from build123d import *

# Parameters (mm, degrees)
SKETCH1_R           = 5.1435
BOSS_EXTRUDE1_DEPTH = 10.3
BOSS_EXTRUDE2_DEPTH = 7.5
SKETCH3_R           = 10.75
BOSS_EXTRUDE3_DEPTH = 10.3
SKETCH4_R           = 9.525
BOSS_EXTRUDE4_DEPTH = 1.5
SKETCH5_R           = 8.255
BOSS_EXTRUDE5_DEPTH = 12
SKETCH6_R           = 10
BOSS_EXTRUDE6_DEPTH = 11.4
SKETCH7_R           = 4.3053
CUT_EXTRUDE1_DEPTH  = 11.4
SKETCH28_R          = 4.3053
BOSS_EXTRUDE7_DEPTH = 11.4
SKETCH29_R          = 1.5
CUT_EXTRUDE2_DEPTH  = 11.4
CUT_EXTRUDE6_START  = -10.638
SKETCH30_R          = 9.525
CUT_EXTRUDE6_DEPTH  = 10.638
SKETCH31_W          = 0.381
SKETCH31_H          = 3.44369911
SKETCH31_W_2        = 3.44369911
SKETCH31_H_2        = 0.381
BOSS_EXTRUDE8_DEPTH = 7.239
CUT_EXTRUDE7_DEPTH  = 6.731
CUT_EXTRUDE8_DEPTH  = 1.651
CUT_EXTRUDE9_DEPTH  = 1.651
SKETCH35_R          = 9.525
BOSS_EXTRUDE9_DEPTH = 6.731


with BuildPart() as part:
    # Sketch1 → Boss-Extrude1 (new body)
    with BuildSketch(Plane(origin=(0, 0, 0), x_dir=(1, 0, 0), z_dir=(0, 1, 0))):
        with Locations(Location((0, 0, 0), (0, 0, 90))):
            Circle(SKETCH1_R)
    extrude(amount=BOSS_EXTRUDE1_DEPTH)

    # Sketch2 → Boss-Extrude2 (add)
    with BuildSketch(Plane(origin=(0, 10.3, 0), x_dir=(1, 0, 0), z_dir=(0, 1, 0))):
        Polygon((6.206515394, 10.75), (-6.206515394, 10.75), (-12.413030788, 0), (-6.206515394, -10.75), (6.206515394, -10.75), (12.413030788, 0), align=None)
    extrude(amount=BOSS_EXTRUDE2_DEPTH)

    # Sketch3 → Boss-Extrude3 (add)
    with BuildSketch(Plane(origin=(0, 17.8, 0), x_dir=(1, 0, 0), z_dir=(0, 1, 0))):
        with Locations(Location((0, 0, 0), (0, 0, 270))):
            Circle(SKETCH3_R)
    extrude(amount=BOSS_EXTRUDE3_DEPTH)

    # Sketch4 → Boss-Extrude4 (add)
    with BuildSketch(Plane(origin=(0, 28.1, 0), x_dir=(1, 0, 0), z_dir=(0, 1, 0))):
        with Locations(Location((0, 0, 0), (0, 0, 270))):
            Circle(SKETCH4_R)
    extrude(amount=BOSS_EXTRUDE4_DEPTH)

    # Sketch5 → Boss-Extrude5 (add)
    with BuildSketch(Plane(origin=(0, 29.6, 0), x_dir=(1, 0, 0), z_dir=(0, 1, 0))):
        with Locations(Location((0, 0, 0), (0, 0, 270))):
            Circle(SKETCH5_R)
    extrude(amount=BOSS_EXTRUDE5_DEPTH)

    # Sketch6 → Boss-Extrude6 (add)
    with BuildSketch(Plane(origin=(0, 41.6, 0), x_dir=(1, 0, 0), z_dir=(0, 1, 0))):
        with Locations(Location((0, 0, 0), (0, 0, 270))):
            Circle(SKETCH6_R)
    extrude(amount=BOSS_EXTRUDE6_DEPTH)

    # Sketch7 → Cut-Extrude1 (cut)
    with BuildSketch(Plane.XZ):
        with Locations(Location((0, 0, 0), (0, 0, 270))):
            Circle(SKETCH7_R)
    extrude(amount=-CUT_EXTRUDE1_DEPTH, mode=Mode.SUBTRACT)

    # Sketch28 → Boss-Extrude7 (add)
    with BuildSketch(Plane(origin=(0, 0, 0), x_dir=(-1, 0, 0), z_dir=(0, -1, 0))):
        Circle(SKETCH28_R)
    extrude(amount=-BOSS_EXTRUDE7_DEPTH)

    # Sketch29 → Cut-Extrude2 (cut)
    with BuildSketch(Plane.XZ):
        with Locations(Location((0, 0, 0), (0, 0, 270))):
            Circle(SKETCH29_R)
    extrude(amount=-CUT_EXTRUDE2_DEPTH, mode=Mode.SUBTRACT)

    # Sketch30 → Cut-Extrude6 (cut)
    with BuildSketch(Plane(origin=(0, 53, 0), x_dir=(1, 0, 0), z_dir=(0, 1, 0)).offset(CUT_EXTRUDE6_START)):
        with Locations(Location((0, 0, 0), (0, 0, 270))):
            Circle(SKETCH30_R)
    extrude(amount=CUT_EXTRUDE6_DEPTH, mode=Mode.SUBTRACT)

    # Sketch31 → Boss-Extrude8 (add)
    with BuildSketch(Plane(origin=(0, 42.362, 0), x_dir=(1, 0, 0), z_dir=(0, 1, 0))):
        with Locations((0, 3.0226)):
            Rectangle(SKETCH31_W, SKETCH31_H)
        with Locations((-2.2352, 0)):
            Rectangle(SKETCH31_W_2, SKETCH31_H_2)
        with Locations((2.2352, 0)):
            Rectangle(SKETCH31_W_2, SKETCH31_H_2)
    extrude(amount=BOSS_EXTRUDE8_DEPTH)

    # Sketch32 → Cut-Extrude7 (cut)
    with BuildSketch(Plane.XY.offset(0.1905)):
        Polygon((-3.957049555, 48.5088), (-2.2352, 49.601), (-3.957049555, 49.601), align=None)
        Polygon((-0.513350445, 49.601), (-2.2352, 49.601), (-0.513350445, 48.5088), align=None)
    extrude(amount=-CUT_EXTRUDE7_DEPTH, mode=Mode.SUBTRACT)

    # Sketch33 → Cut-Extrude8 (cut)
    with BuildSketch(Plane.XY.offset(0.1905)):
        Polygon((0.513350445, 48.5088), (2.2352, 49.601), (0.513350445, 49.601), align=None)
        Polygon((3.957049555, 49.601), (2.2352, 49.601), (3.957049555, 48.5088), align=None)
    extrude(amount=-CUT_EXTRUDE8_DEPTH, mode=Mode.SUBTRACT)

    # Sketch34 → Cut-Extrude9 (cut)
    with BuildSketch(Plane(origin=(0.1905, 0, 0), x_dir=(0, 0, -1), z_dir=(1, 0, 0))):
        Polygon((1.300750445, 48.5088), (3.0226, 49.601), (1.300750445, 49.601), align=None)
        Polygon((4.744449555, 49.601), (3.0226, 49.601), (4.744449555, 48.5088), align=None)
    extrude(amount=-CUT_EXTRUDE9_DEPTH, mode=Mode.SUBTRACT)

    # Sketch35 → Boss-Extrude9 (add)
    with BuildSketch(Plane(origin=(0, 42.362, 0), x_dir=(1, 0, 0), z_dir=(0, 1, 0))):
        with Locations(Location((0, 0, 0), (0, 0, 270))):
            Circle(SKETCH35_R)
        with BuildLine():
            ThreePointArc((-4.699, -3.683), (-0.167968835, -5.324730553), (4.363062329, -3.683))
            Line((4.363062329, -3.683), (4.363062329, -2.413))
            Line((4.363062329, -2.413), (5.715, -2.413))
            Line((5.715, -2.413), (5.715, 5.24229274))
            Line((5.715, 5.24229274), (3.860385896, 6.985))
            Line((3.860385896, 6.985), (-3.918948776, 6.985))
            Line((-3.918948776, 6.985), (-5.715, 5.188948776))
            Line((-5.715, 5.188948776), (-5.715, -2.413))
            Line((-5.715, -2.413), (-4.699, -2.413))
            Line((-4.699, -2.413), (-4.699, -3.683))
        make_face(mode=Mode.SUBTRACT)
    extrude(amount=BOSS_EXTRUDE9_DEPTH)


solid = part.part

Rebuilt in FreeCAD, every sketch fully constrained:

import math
import FreeCAD as App
import Part
import Sketcher
from FreeCAD import Vector
Q = App.Units.Quantity


def add_polygon(sketch, points):
    """Adds a closed chain of lines whose ends are joined by coincident constraints."""
    first, n = sketch.GeometryCount, len(points)
    for a, b in zip(points, points[1:] + points[:1]):
        sketch.addGeometry(Part.LineSegment(App.Vector(*a, 0), App.Vector(*b, 0)), False)
    for i in range(n):
        sketch.addConstraint(Sketcher.Constraint("Coincident", first + i, 2, first + (i + 1) % n, 1))

doc = App.newDocument("Part")
params = doc.addObject("Spreadsheet::Sheet", "Params")
for row, (alias, value) in enumerate([
    ("sketch1_diameter", "0.405 in"),
    ("pad1_length", "10.3 mm"),
    ("pad2_length", "7.5 mm"),
    ("pad3_length", "10.3 mm"),
    ("sketch4_diameter", "0.75 in"),
    ("pad4_length", "1.5 mm"),
    ("sketch5_diameter", "0.65 in"),
    ("pad5_length", "12 mm"),
    ("pad6_length", "11.4 mm"),
    ("sketch7_diameter", "0.339 in"),
    ("pocket1_length", "11.4 mm"),
    ("sketch8_diameter", "0.339 in"),
    ("pad7_length", "11.4 mm"),
    ("pocket2_length", "11.4 mm"),
    ("sketch10_diameter", "0.75 in"),
    ("pocket3_length", "10.638 mm"),
    ("sketch11_width", "0.015 in"),
    ("pad8_length", "0.285 in"),
    ("sketch12_height", "0.043 in"),
    ("pocket4_length", "0.265 in"),
    ("sketch13_height", "0.043 in"),
    ("pocket5_length", "0.065 in"),
    ("sketch14_width", "0.043 in"),
    ("pocket6_length", "0.065 in"),
    ("sketch15_diameter", "0.75 in"),
    ("sketch15_length", "0.1 in"),
    ("sketch15_width", "0.04 in"),
    ("sketch15_height", "0.05 in"),
    ("pad9_length", "0.265 in"),
], start=1):
    params.set(f"A{row}", alias)
    params.set(f"B{row}", "=" + value)
    params.setAlias(f"B{row}", alias)

body = doc.addObject("PartDesign::Body", "Body")

sketch1 = doc.addObject("Sketcher::SketchObject", "Sketch")
body.addObject(sketch1)
sketch1.AttachmentSupport = (doc.XZ_Plane, [""])
sketch1.MapMode = "FlatFace"
sketch1.addGeometry(Part.Circle(Vector(0, 0, 0), Vector(0, 0, 1), 5.1435), False)
sketch1.addConstraint([
    Sketcher.Constraint("Coincident", 0, 3, -1, 1),
    Sketcher.Constraint("Diameter", 0, Q("0.405 in")),
])
sketch1.setExpression("Constraints[1]", "Params.sketch1_diameter")
pad1 = doc.addObject("PartDesign::Pad", "Pad")
body.addObject(pad1)
pad1.Profile = sketch1
pad1.setExpression("Length", "Params.pad1_length")
pad1.Reversed = True

sketch2 = doc.addObject("Sketcher::SketchObject", "Sketch001")
body.addObject(sketch2)
sketch2.AttachmentSupport = (doc.XZ_Plane, [""])
sketch2.MapMode = "FlatFace"
sketch2.AttachmentOffset = App.Placement(Vector(0, 0, -10.3), App.Rotation())
add_polygon(sketch2, [(6.206515, -10.75), (-6.206515, -10.75), (-12.413031, 0), (-6.206515, 10.75), (6.206515, 10.75), (12.413031, 0)])
sketch2.addConstraint([
    Sketcher.Constraint("Horizontal", 0),
    Sketcher.Constraint("Horizontal", 3),
    Sketcher.Constraint("Symmetric", 0, 2, 3, 2, -1, 1),
    Sketcher.Constraint("Symmetric", 1, 2, 4, 2, -1, 1),
    Sketcher.Constraint("PointOnObject", 1, 2, -1),
    Sketcher.Constraint("Parallel", 2, 5),
    Sketcher.Constraint("Vertical", 0, 2, 2, 2),
    Sketcher.Constraint("Angle", 1, Q("120 deg")),
    Sketcher.Constraint("DistanceX", 0, 2, 0, 1, Q("12.413031 mm")),
    Sketcher.Constraint("DistanceY", 0, 2, -1, 1, Q("10.75 mm")),
])
pad2 = doc.addObject("PartDesign::Pad", "Pad001")
body.addObject(pad2)
pad2.Profile = sketch2
pad2.setExpression("Length", "Params.pad2_length")
pad2.Reversed = True

sketch3 = doc.addObject("Sketcher::SketchObject", "Sketch002")
body.addObject(sketch3)
sketch3.AttachmentSupport = (doc.XZ_Plane, [""])
sketch3.MapMode = "FlatFace"
sketch3.AttachmentOffset = App.Placement(Vector(0, 0, -17.8), App.Rotation())
sketch3.addGeometry(Part.Circle(Vector(0, 0, 0), Vector(0, 0, 1), 10.75), False)
sketch3.addConstraint([
    Sketcher.Constraint("Coincident", 0, 3, -1, 1),
    Sketcher.Constraint("Diameter", 0, Q("21.5 mm")),
])
pad3 = doc.addObject("PartDesign::Pad", "Pad002")
body.addObject(pad3)
pad3.Profile = sketch3
pad3.setExpression("Length", "Params.pad3_length")
pad3.Reversed = True

sketch4 = doc.addObject("Sketcher::SketchObject", "Sketch003")
body.addObject(sketch4)
sketch4.AttachmentSupport = (doc.XZ_Plane, [""])
sketch4.MapMode = "FlatFace"
sketch4.AttachmentOffset = App.Placement(Vector(0, 0, -28.1), App.Rotation())
sketch4.addGeometry(Part.Circle(Vector(0, 0, 0), Vector(0, 0, 1), 9.525), False)
sketch4.addConstraint([
    Sketcher.Constraint("Coincident", 0, 3, -1, 1),
    Sketcher.Constraint("Diameter", 0, Q("0.75 in")),
])
sketch4.setExpression("Constraints[1]", "Params.sketch4_diameter")
pad4 = doc.addObject("PartDesign::Pad", "Pad003")
body.addObject(pad4)
pad4.Profile = sketch4
pad4.setExpression("Length", "Params.pad4_length")
pad4.Reversed = True

sketch5 = doc.addObject("Sketcher::SketchObject", "Sketch004")
body.addObject(sketch5)
sketch5.AttachmentSupport = (doc.XZ_Plane, [""])
sketch5.MapMode = "FlatFace"
sketch5.AttachmentOffset = App.Placement(Vector(0, 0, -29.6), App.Rotation())
sketch5.addGeometry(Part.Circle(Vector(0, 0, 0), Vector(0, 0, 1), 8.255), False)
sketch5.addConstraint([
    Sketcher.Constraint("Coincident", 0, 3, -1, 1),
    Sketcher.Constraint("Diameter", 0, Q("0.65 in")),
])
sketch5.setExpression("Constraints[1]", "Params.sketch5_diameter")
pad5 = doc.addObject("PartDesign::Pad", "Pad004")
body.addObject(pad5)
pad5.Profile = sketch5
pad5.setExpression("Length", "Params.pad5_length")
pad5.Reversed = True

sketch6 = doc.addObject("Sketcher::SketchObject", "Sketch005")
body.addObject(sketch6)
sketch6.AttachmentSupport = (doc.XZ_Plane, [""])
sketch6.MapMode = "FlatFace"
sketch6.AttachmentOffset = App.Placement(Vector(0, 0, -41.6), App.Rotation())
sketch6.addGeometry(Part.Circle(Vector(0, 0, 0), Vector(0, 0, 1), 10), False)
sketch6.addConstraint([
    Sketcher.Constraint("Coincident", 0, 3, -1, 1),
    Sketcher.Constraint("Diameter", 0, Q("20 mm")),
])
pad6 = doc.addObject("PartDesign::Pad", "Pad005")
body.addObject(pad6)
pad6.Profile = sketch6
pad6.setExpression("Length", "Params.pad6_length")
pad6.Reversed = True

sketch7 = doc.addObject("Sketcher::SketchObject", "Sketch006")
body.addObject(sketch7)
sketch7.AttachmentSupport = (doc.XZ_Plane, [""])
sketch7.MapMode = "FlatFace"
sketch7.addGeometry(Part.Circle(Vector(0, 0, 0), Vector(0, 0, 1), 4.3053), False)
sketch7.addConstraint([
    Sketcher.Constraint("Coincident", 0, 3, -1, 1),
    Sketcher.Constraint("Diameter", 0, Q("0.339 in")),
])
sketch7.setExpression("Constraints[1]", "Params.sketch7_diameter")
pocket1 = doc.addObject("PartDesign::Pocket", "Pocket")
body.addObject(pocket1)
pocket1.Profile = sketch7
pocket1.setExpression("Length", "Params.pocket1_length")

sketch8 = doc.addObject("Sketcher::SketchObject", "Sketch007")
body.addObject(sketch8)
sketch8.AttachmentSupport = (doc.XZ_Plane, [""])
sketch8.MapMode = "FlatFace"
sketch8.addGeometry(Part.Circle(Vector(0, 0, 0), Vector(0, 0, 1), 4.3053), False)
sketch8.addConstraint([
    Sketcher.Constraint("Coincident", 0, 3, -1, 1),
    Sketcher.Constraint("Diameter", 0, Q("0.339 in")),
])
sketch8.setExpression("Constraints[1]", "Params.sketch8_diameter")
pad7 = doc.addObject("PartDesign::Pad", "Pad006")
body.addObject(pad7)
pad7.Profile = sketch8
pad7.setExpression("Length", "Params.pad7_length")
pad7.Reversed = True

sketch9 = doc.addObject("Sketcher::SketchObject", "Sketch008")
body.addObject(sketch9)
sketch9.AttachmentSupport = (doc.XZ_Plane, [""])
sketch9.MapMode = "FlatFace"
sketch9.addGeometry(Part.Circle(Vector(0, 0, 0), Vector(0, 0, 1), 1.5), False)
sketch9.addConstraint([
    Sketcher.Constraint("Coincident", 0, 3, -1, 1),
    Sketcher.Constraint("Diameter", 0, Q("3 mm")),
])
pocket2 = doc.addObject("PartDesign::Pocket", "Pocket001")
body.addObject(pocket2)
pocket2.Profile = sketch9
pocket2.setExpression("Length", "Params.pocket2_length")

sketch10 = doc.addObject("Sketcher::SketchObject", "Sketch009")
body.addObject(sketch10)
sketch10.AttachmentSupport = (doc.XZ_Plane, [""])
sketch10.MapMode = "FlatFace"
sketch10.AttachmentOffset = App.Placement(Vector(0, 0, -42.362), App.Rotation())
sketch10.addGeometry(Part.Circle(Vector(0, 0, 0), Vector(0, 0, 1), 9.525), False)
sketch10.addConstraint([
    Sketcher.Constraint("Coincident", 0, 3, -1, 1),
    Sketcher.Constraint("Diameter", 0, Q("0.75 in")),
])
sketch10.setExpression("Constraints[1]", "Params.sketch10_diameter")
pocket3 = doc.addObject("PartDesign::Pocket", "Pocket002")
body.addObject(pocket3)
pocket3.Profile = sketch10
pocket3.setExpression("Length", "Params.pocket3_length")

sketch11 = doc.addObject("Sketcher::SketchObject", "Sketch010")
body.addObject(sketch11)
sketch11.AttachmentSupport = (doc.XZ_Plane, [""])
sketch11.MapMode = "FlatFace"
sketch11.AttachmentOffset = App.Placement(Vector(0, 0, -42.362), App.Rotation())
add_polygon(sketch11, [(-0.1905, -4.74445), (-0.1905, -1.30075), (0.1905, -1.30075), (0.1905, -4.74445)])
add_polygon(sketch11, [(-3.95705, -0.1905), (-3.95705, 0.1905), (-0.51335, 0.1905), (-0.51335, -0.1905)])
add_polygon(sketch11, [(0.51335, -0.1905), (0.51335, 0.1905), (3.95705, 0.1905), (3.95705, -0.1905)])
sketch11.addConstraint([
    Sketcher.Constraint("Vertical", 0),
    Sketcher.Constraint("Horizontal", 1),
    Sketcher.Constraint("Vertical", 2),
    Sketcher.Constraint("Horizontal", 3),
    Sketcher.Constraint("Vertical", 4),
    Sketcher.Constraint("Horizontal", 5),
    Sketcher.Constraint("Vertical", 6),
    Sketcher.Constraint("Horizontal", 7),
    Sketcher.Constraint("Vertical", 8),
    Sketcher.Constraint("Horizontal", 9),
    Sketcher.Constraint("Vertical", 10),
    Sketcher.Constraint("Horizontal", 11),
    Sketcher.Constraint("Symmetric", 6, 2, 8, 2, -1, 1),
    Sketcher.Constraint("Symmetric", 4, 2, 10, 2, -1, 1),
    Sketcher.Constraint("Horizontal", 5, 2, 8, 2),
    Sketcher.Constraint("Equal", 11, 0),
    Sketcher.Constraint("Equal", 3, 4),
    Sketcher.Constraint("DistanceX", 1, 1, 1, 2, Q("0.015 in")),
    Sketcher.Constraint("DistanceX", 4, 2, 8, 2, Q("0.176 in")),
    Sketcher.Constraint("DistanceX", 5, 1, 5, 2, Q("3.443699 mm")),
    Sketcher.Constraint("DistanceX", 0, 2, -1, 1, Q("0.0075 in")),
    Sketcher.Constraint("DistanceY", 0, 2, -1, 1, Q("1.30075 mm")),
])
sketch11.setExpression("Constraints[29]", "Params.sketch11_width")
pad8 = doc.addObject("PartDesign::Pad", "Pad007")
body.addObject(pad8)
pad8.Profile = sketch11
pad8.setExpression("Length", "Params.pad8_length")
pad8.Reversed = True

sketch12 = doc.addObject("Sketcher::SketchObject", "Sketch011")
body.addObject(sketch12)
sketch12.AttachmentSupport = (doc.XY_Plane, [""])
sketch12.MapMode = "FlatFace"
sketch12.AttachmentOffset = App.Placement(Vector(0, 0, 0.0075 * 25.4), App.Rotation())
add_polygon(sketch12, [(-3.95705, 48.5088), (-2.2352, 49.601), (-3.95705, 49.601)])
add_polygon(sketch12, [(-0.51335, 49.601), (-2.2352, 49.601), (-0.51335, 48.5088)])
sketch12.addConstraint([
    Sketcher.Constraint("Horizontal", 1),
    Sketcher.Constraint("Vertical", 2),
    Sketcher.Constraint("Horizontal", 3),
    Sketcher.Constraint("Vertical", 5),
    Sketcher.Constraint("Coincident", 3, 2, 0, 2),
    Sketcher.Constraint("Horizontal", 2, 2, 4, 2),
    Sketcher.Constraint("Equal", 1, 3),
    Sketcher.Constraint("DistanceY", 2, 2, 2, 1, Q("0.043 in")),
    Sketcher.Constraint("DistanceX", 0, 2, -1, 1, Q("0.088 in")),
    Sketcher.Constraint("DistanceX", 1, 2, 1, 1, Q("1.72185 mm")),
    Sketcher.Constraint("DistanceY", -1, 1, 0, 2, Q("49.601 mm")),
])
sketch12.setExpression("Constraints[13]", "Params.sketch12_height")
pocket4 = doc.addObject("PartDesign::Pocket", "Pocket003")
body.addObject(pocket4)
pocket4.Profile = sketch12
pocket4.setExpression("Length", "Params.pocket4_length")

sketch13 = doc.addObject("Sketcher::SketchObject", "Sketch012")
body.addObject(sketch13)
sketch13.AttachmentSupport = (doc.XY_Plane, [""])
sketch13.MapMode = "FlatFace"
sketch13.AttachmentOffset = App.Placement(Vector(0, 0, 0.0075 * 25.4), App.Rotation())
add_polygon(sketch13, [(0.51335, 48.5088), (2.2352, 49.601), (0.51335, 49.601)])
add_polygon(sketch13, [(3.95705, 49.601), (2.2352, 49.601), (3.95705, 48.5088)])
sketch13.addConstraint([
    Sketcher.Constraint("Horizontal", 1),
    Sketcher.Constraint("Vertical", 2),
    Sketcher.Constraint("Horizontal", 3),
    Sketcher.Constraint("Vertical", 5),
    Sketcher.Constraint("Coincident", 3, 2, 0, 2),
    Sketcher.Constraint("Horizontal", 2, 2, 4, 2),
    Sketcher.Constraint("Equal", 1, 3),
    Sketcher.Constraint("DistanceY", 2, 2, 2, 1, Q("0.043 in")),
    Sketcher.Constraint("DistanceX", -1, 1, 0, 2, Q("0.088 in")),
    Sketcher.Constraint("DistanceX", 1, 2, 1, 1, Q("1.72185 mm")),
    Sketcher.Constraint("DistanceY", -1, 1, 0, 2, Q("49.601 mm")),
])
sketch13.setExpression("Constraints[13]", "Params.sketch13_height")
pocket5 = doc.addObject("PartDesign::Pocket", "Pocket004")
body.addObject(pocket5)
pocket5.Profile = sketch13
pocket5.setExpression("Length", "Params.pocket5_length")

sketch14 = doc.addObject("Sketcher::SketchObject", "Sketch013")
body.addObject(sketch14)
sketch14.AttachmentSupport = (doc.YZ_Plane, [""])
sketch14.MapMode = "FlatFace"
sketch14.AttachmentOffset = App.Placement(Vector(0, 0, 0.0075 * 25.4), App.Rotation())
add_polygon(sketch14, [(48.5088, -1.30075), (49.601, -3.0226), (49.601, -1.30075)])
add_polygon(sketch14, [(49.601, -4.74445), (49.601, -3.0226), (48.5088, -4.74445)])
sketch14.addConstraint([
    Sketcher.Constraint("Vertical", 1),
    Sketcher.Constraint("Horizontal", 2),
    Sketcher.Constraint("Vertical", 3),
    Sketcher.Constraint("Horizontal", 5),
    Sketcher.Constraint("Coincident", 3, 2, 0, 2),
    Sketcher.Constraint("Vertical", 2, 2, 4, 2),
    Sketcher.Constraint("Equal", 1, 3),
    Sketcher.Constraint("DistanceX", 2, 2, 2, 1, Q("0.043 in")),
    Sketcher.Constraint("DistanceY", 0, 2, -1, 1, Q("0.119 in")),
    Sketcher.Constraint("DistanceY", 1, 1, 1, 2, Q("1.72185 mm")),
    Sketcher.Constraint("DistanceX", -1, 1, 0, 2, Q("49.601 mm")),
])
sketch14.setExpression("Constraints[13]", "Params.sketch14_width")
pocket6 = doc.addObject("PartDesign::Pocket", "Pocket005")
body.addObject(pocket6)
pocket6.Profile = sketch14
pocket6.setExpression("Length", "Params.pocket6_length")

sketch15 = doc.addObject("Sketcher::SketchObject", "Sketch014")
body.addObject(sketch15)
sketch15.AttachmentSupport = (doc.XZ_Plane, [""])
sketch15.MapMode = "FlatFace"
sketch15.AttachmentOffset = App.Placement(Vector(0, 0, -42.362), App.Rotation())
sketch15.addGeometry([
    Part.Circle(Vector(0, 0, 0), Vector(0, 0, 1), 9.525),
    Part.ArcOfCircle(Part.Circle(Vector(-0.167969, -1.748757, 0), Vector(0, 0, 1), 7.073488), math.radians(50.166012), math.radians(129.833988)),
    Part.LineSegment(Vector(-4.699, 3.683, 0), Vector(-4.699, 2.413, 0)),
    Part.LineSegment(Vector(-4.699, 2.413, 0), Vector(-5.715, 2.413, 0)),
    Part.LineSegment(Vector(-5.715, 2.413, 0), Vector(-5.715, -5.188949, 0)),
    Part.LineSegment(Vector(-5.715, -5.188949, 0), Vector(-3.918949, -6.985, 0)),
    Part.LineSegment(Vector(-3.918949, -6.985, 0), Vector(3.860386, -6.985, 0)),
    Part.LineSegment(Vector(3.860386, -6.985, 0), Vector(5.715, -5.242293, 0)),
    Part.LineSegment(Vector(5.715, -5.242293, 0), Vector(5.715, 2.413, 0)),
    Part.LineSegment(Vector(5.715, 2.413, 0), Vector(4.363062, 2.413, 0)),
    Part.LineSegment(Vector(4.363062, 2.413, 0), Vector(4.363062, 3.683, 0)),
], False)
sketch15.addConstraint([
    Sketcher.Constraint("Coincident", 1, 2, 2, 1),
    Sketcher.Constraint("Coincident", 2, 2, 3, 1),
    Sketcher.Constraint("Coincident", 3, 2, 4, 1),
    Sketcher.Constraint("Coincident", 4, 2, 5, 1),
    Sketcher.Constraint("Coincident", 5, 2, 6, 1),
    Sketcher.Constraint("Coincident", 6, 2, 7, 1),
    Sketcher.Constraint("Coincident", 7, 2, 8, 1),
    Sketcher.Constraint("Coincident", 8, 2, 9, 1),
    Sketcher.Constraint("Coincident", 9, 2, 10, 1),
    Sketcher.Constraint("Coincident", 10, 2, 1, 1),
    Sketcher.Constraint("Vertical", 2),
    Sketcher.Constraint("Horizontal", 3),
    Sketcher.Constraint("Vertical", 4),
    Sketcher.Constraint("Horizontal", 6),
    Sketcher.Constraint("Vertical", 8),
    Sketcher.Constraint("Horizontal", 9),
    Sketcher.Constraint("Vertical", 10),
    Sketcher.Constraint("Coincident", 0, 3, -1, 1),
    Sketcher.Constraint("Symmetric", 3, 2, 8, 2, -2),
    Sketcher.Constraint("Horizontal", 1, 2, 10, 2),
    Sketcher.Constraint("Diameter", 0, Q("0.75 in")),
    Sketcher.Constraint("Angle", 5, Q("-45 deg")),
    Sketcher.Constraint("Distance", 5, Q("0.1 in")),
    Sketcher.Constraint("DistanceX", 3, 2, 3, 1, Q("0.04 in")),
    Sketcher.Constraint("DistanceY", 2, 2, 2, 1, Q("0.05 in")),
    Sketcher.Constraint("DistanceY", 5, 2, 2, 2, Q("0.37 in")),
    Sketcher.Constraint("DistanceX", 4, 2, 7, 2, Q("0.45 in")),
    Sketcher.Constraint("DistanceY", -1, 1, 1, 2, Q("0.145 in")),
    Sketcher.Constraint("Radius", 1, Q("7.073488 mm")),
    Sketcher.Constraint("DistanceY", 7, 2, 4, 2, Q("0.0021002 in")),
    Sketcher.Constraint("Distance", 7, Q("2.544921 mm")),
    Sketcher.Constraint("DistanceX", 9, 2, 9, 1, Q("1.351938 mm")),
])
sketch15.setExpression("Constraints[20]", "Params.sketch15_diameter")
sketch15.setExpression("Constraints[22]", "Params.sketch15_length")
sketch15.setExpression("Constraints[23]", "Params.sketch15_width")
sketch15.setExpression("Constraints[24]", "Params.sketch15_height")
pad9 = doc.addObject("PartDesign::Pad", "Pad008")
body.addObject(pad9)
pad9.Profile = sketch15
pad9.setExpression("Length", "Params.pad9_length")
pad9.Reversed = True

doc.recompute()
